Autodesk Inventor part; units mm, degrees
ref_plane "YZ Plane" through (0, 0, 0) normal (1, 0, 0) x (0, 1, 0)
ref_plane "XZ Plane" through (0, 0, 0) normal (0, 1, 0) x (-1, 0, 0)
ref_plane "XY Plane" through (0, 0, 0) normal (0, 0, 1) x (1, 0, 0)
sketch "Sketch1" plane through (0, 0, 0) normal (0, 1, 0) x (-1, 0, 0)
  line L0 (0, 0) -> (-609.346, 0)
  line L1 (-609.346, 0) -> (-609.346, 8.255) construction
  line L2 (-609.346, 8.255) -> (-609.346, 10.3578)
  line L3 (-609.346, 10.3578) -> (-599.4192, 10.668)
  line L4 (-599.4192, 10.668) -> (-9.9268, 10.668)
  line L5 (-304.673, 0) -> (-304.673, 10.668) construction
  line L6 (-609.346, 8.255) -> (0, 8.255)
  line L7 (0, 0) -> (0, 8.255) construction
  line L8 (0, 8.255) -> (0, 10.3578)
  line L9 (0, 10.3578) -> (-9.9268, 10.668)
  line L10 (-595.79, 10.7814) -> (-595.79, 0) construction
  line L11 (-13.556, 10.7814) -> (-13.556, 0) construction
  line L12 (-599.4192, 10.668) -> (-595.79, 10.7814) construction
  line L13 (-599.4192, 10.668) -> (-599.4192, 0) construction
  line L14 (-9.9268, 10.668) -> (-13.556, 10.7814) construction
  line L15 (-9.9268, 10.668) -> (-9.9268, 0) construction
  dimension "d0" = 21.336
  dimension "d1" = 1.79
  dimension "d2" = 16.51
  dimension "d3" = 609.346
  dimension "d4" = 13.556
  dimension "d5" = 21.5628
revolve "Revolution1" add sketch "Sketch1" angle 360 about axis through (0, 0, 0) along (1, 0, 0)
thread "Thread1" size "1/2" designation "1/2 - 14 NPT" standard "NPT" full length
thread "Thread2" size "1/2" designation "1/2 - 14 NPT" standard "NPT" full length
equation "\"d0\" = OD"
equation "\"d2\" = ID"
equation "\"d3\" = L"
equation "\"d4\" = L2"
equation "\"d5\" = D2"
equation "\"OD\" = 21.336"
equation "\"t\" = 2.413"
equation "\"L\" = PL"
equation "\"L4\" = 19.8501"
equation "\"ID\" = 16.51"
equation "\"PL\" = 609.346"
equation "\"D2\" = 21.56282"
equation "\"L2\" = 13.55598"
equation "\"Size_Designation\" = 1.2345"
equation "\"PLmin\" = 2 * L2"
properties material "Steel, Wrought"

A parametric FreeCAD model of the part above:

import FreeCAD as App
import Part
import Sketcher
Q = App.Units.Quantity


def add_polygon(sketch, points):
    """Adds a closed chain of lines whose ends are joined by coincident constraints."""
    first, n = sketch.GeometryCount, len(points)
    for a, b in zip(points, points[1:] + points[:1]):
        sketch.addGeometry(Part.LineSegment(App.Vector(*a, 0), App.Vector(*b, 0)), False)
    for i in range(n):
        sketch.addConstraint(Sketcher.Constraint("Coincident", first + i, 2, first + (i + 1) % n, 1))

doc = App.newDocument("Part")
body = doc.addObject("PartDesign::Body", "Body")

sketch1 = body.newObject("Sketcher::SketchObject", "Sketch")
sketch1.AttachmentSupport = (doc.getObject("XZ_Plane"), [""])
sketch1.MapMode = "FlatFace"
add_polygon(sketch1, [(609.3, 10.4), (609.3, 8.3), (0, 8.3), (0, 10.4), (9.9, 10.7), (599.4, 10.7)])
sketch1.addConstraint([
    Sketcher.Constraint("Vertical", 0),
    Sketcher.Constraint("Horizontal", 1),
    Sketcher.Constraint("Vertical", 2),
    Sketcher.Constraint("Horizontal", 4),
    Sketcher.Constraint("PointOnObject", 1, 2, -2),
    Sketcher.Constraint("Horizontal", 2, 2, 5, 2),
    Sketcher.Constraint("Equal", 3, 5),
    Sketcher.Constraint("DistanceX", 1, 2, 1, 1, Q("23.99 in")),
    Sketcher.Constraint("Angle", 3, Q("1.7898 deg")),
    Sketcher.Constraint("DistanceY", -1, 1, 3, 2, Q("0.42 in")),
    Sketcher.Constraint("Distance", 3, Q("0.391 in")),
    Sketcher.Constraint("DistanceY", -1, 1, 0, 2, Q("0.325 in")),
])
revolution = body.newObject("PartDesign::Revolution", "Revolution")
revolution.Profile = sketch1
revolution.ReferenceAxis = (sketch1, ["H_Axis"])
revolution.Angle = 360

doc.recompute()
